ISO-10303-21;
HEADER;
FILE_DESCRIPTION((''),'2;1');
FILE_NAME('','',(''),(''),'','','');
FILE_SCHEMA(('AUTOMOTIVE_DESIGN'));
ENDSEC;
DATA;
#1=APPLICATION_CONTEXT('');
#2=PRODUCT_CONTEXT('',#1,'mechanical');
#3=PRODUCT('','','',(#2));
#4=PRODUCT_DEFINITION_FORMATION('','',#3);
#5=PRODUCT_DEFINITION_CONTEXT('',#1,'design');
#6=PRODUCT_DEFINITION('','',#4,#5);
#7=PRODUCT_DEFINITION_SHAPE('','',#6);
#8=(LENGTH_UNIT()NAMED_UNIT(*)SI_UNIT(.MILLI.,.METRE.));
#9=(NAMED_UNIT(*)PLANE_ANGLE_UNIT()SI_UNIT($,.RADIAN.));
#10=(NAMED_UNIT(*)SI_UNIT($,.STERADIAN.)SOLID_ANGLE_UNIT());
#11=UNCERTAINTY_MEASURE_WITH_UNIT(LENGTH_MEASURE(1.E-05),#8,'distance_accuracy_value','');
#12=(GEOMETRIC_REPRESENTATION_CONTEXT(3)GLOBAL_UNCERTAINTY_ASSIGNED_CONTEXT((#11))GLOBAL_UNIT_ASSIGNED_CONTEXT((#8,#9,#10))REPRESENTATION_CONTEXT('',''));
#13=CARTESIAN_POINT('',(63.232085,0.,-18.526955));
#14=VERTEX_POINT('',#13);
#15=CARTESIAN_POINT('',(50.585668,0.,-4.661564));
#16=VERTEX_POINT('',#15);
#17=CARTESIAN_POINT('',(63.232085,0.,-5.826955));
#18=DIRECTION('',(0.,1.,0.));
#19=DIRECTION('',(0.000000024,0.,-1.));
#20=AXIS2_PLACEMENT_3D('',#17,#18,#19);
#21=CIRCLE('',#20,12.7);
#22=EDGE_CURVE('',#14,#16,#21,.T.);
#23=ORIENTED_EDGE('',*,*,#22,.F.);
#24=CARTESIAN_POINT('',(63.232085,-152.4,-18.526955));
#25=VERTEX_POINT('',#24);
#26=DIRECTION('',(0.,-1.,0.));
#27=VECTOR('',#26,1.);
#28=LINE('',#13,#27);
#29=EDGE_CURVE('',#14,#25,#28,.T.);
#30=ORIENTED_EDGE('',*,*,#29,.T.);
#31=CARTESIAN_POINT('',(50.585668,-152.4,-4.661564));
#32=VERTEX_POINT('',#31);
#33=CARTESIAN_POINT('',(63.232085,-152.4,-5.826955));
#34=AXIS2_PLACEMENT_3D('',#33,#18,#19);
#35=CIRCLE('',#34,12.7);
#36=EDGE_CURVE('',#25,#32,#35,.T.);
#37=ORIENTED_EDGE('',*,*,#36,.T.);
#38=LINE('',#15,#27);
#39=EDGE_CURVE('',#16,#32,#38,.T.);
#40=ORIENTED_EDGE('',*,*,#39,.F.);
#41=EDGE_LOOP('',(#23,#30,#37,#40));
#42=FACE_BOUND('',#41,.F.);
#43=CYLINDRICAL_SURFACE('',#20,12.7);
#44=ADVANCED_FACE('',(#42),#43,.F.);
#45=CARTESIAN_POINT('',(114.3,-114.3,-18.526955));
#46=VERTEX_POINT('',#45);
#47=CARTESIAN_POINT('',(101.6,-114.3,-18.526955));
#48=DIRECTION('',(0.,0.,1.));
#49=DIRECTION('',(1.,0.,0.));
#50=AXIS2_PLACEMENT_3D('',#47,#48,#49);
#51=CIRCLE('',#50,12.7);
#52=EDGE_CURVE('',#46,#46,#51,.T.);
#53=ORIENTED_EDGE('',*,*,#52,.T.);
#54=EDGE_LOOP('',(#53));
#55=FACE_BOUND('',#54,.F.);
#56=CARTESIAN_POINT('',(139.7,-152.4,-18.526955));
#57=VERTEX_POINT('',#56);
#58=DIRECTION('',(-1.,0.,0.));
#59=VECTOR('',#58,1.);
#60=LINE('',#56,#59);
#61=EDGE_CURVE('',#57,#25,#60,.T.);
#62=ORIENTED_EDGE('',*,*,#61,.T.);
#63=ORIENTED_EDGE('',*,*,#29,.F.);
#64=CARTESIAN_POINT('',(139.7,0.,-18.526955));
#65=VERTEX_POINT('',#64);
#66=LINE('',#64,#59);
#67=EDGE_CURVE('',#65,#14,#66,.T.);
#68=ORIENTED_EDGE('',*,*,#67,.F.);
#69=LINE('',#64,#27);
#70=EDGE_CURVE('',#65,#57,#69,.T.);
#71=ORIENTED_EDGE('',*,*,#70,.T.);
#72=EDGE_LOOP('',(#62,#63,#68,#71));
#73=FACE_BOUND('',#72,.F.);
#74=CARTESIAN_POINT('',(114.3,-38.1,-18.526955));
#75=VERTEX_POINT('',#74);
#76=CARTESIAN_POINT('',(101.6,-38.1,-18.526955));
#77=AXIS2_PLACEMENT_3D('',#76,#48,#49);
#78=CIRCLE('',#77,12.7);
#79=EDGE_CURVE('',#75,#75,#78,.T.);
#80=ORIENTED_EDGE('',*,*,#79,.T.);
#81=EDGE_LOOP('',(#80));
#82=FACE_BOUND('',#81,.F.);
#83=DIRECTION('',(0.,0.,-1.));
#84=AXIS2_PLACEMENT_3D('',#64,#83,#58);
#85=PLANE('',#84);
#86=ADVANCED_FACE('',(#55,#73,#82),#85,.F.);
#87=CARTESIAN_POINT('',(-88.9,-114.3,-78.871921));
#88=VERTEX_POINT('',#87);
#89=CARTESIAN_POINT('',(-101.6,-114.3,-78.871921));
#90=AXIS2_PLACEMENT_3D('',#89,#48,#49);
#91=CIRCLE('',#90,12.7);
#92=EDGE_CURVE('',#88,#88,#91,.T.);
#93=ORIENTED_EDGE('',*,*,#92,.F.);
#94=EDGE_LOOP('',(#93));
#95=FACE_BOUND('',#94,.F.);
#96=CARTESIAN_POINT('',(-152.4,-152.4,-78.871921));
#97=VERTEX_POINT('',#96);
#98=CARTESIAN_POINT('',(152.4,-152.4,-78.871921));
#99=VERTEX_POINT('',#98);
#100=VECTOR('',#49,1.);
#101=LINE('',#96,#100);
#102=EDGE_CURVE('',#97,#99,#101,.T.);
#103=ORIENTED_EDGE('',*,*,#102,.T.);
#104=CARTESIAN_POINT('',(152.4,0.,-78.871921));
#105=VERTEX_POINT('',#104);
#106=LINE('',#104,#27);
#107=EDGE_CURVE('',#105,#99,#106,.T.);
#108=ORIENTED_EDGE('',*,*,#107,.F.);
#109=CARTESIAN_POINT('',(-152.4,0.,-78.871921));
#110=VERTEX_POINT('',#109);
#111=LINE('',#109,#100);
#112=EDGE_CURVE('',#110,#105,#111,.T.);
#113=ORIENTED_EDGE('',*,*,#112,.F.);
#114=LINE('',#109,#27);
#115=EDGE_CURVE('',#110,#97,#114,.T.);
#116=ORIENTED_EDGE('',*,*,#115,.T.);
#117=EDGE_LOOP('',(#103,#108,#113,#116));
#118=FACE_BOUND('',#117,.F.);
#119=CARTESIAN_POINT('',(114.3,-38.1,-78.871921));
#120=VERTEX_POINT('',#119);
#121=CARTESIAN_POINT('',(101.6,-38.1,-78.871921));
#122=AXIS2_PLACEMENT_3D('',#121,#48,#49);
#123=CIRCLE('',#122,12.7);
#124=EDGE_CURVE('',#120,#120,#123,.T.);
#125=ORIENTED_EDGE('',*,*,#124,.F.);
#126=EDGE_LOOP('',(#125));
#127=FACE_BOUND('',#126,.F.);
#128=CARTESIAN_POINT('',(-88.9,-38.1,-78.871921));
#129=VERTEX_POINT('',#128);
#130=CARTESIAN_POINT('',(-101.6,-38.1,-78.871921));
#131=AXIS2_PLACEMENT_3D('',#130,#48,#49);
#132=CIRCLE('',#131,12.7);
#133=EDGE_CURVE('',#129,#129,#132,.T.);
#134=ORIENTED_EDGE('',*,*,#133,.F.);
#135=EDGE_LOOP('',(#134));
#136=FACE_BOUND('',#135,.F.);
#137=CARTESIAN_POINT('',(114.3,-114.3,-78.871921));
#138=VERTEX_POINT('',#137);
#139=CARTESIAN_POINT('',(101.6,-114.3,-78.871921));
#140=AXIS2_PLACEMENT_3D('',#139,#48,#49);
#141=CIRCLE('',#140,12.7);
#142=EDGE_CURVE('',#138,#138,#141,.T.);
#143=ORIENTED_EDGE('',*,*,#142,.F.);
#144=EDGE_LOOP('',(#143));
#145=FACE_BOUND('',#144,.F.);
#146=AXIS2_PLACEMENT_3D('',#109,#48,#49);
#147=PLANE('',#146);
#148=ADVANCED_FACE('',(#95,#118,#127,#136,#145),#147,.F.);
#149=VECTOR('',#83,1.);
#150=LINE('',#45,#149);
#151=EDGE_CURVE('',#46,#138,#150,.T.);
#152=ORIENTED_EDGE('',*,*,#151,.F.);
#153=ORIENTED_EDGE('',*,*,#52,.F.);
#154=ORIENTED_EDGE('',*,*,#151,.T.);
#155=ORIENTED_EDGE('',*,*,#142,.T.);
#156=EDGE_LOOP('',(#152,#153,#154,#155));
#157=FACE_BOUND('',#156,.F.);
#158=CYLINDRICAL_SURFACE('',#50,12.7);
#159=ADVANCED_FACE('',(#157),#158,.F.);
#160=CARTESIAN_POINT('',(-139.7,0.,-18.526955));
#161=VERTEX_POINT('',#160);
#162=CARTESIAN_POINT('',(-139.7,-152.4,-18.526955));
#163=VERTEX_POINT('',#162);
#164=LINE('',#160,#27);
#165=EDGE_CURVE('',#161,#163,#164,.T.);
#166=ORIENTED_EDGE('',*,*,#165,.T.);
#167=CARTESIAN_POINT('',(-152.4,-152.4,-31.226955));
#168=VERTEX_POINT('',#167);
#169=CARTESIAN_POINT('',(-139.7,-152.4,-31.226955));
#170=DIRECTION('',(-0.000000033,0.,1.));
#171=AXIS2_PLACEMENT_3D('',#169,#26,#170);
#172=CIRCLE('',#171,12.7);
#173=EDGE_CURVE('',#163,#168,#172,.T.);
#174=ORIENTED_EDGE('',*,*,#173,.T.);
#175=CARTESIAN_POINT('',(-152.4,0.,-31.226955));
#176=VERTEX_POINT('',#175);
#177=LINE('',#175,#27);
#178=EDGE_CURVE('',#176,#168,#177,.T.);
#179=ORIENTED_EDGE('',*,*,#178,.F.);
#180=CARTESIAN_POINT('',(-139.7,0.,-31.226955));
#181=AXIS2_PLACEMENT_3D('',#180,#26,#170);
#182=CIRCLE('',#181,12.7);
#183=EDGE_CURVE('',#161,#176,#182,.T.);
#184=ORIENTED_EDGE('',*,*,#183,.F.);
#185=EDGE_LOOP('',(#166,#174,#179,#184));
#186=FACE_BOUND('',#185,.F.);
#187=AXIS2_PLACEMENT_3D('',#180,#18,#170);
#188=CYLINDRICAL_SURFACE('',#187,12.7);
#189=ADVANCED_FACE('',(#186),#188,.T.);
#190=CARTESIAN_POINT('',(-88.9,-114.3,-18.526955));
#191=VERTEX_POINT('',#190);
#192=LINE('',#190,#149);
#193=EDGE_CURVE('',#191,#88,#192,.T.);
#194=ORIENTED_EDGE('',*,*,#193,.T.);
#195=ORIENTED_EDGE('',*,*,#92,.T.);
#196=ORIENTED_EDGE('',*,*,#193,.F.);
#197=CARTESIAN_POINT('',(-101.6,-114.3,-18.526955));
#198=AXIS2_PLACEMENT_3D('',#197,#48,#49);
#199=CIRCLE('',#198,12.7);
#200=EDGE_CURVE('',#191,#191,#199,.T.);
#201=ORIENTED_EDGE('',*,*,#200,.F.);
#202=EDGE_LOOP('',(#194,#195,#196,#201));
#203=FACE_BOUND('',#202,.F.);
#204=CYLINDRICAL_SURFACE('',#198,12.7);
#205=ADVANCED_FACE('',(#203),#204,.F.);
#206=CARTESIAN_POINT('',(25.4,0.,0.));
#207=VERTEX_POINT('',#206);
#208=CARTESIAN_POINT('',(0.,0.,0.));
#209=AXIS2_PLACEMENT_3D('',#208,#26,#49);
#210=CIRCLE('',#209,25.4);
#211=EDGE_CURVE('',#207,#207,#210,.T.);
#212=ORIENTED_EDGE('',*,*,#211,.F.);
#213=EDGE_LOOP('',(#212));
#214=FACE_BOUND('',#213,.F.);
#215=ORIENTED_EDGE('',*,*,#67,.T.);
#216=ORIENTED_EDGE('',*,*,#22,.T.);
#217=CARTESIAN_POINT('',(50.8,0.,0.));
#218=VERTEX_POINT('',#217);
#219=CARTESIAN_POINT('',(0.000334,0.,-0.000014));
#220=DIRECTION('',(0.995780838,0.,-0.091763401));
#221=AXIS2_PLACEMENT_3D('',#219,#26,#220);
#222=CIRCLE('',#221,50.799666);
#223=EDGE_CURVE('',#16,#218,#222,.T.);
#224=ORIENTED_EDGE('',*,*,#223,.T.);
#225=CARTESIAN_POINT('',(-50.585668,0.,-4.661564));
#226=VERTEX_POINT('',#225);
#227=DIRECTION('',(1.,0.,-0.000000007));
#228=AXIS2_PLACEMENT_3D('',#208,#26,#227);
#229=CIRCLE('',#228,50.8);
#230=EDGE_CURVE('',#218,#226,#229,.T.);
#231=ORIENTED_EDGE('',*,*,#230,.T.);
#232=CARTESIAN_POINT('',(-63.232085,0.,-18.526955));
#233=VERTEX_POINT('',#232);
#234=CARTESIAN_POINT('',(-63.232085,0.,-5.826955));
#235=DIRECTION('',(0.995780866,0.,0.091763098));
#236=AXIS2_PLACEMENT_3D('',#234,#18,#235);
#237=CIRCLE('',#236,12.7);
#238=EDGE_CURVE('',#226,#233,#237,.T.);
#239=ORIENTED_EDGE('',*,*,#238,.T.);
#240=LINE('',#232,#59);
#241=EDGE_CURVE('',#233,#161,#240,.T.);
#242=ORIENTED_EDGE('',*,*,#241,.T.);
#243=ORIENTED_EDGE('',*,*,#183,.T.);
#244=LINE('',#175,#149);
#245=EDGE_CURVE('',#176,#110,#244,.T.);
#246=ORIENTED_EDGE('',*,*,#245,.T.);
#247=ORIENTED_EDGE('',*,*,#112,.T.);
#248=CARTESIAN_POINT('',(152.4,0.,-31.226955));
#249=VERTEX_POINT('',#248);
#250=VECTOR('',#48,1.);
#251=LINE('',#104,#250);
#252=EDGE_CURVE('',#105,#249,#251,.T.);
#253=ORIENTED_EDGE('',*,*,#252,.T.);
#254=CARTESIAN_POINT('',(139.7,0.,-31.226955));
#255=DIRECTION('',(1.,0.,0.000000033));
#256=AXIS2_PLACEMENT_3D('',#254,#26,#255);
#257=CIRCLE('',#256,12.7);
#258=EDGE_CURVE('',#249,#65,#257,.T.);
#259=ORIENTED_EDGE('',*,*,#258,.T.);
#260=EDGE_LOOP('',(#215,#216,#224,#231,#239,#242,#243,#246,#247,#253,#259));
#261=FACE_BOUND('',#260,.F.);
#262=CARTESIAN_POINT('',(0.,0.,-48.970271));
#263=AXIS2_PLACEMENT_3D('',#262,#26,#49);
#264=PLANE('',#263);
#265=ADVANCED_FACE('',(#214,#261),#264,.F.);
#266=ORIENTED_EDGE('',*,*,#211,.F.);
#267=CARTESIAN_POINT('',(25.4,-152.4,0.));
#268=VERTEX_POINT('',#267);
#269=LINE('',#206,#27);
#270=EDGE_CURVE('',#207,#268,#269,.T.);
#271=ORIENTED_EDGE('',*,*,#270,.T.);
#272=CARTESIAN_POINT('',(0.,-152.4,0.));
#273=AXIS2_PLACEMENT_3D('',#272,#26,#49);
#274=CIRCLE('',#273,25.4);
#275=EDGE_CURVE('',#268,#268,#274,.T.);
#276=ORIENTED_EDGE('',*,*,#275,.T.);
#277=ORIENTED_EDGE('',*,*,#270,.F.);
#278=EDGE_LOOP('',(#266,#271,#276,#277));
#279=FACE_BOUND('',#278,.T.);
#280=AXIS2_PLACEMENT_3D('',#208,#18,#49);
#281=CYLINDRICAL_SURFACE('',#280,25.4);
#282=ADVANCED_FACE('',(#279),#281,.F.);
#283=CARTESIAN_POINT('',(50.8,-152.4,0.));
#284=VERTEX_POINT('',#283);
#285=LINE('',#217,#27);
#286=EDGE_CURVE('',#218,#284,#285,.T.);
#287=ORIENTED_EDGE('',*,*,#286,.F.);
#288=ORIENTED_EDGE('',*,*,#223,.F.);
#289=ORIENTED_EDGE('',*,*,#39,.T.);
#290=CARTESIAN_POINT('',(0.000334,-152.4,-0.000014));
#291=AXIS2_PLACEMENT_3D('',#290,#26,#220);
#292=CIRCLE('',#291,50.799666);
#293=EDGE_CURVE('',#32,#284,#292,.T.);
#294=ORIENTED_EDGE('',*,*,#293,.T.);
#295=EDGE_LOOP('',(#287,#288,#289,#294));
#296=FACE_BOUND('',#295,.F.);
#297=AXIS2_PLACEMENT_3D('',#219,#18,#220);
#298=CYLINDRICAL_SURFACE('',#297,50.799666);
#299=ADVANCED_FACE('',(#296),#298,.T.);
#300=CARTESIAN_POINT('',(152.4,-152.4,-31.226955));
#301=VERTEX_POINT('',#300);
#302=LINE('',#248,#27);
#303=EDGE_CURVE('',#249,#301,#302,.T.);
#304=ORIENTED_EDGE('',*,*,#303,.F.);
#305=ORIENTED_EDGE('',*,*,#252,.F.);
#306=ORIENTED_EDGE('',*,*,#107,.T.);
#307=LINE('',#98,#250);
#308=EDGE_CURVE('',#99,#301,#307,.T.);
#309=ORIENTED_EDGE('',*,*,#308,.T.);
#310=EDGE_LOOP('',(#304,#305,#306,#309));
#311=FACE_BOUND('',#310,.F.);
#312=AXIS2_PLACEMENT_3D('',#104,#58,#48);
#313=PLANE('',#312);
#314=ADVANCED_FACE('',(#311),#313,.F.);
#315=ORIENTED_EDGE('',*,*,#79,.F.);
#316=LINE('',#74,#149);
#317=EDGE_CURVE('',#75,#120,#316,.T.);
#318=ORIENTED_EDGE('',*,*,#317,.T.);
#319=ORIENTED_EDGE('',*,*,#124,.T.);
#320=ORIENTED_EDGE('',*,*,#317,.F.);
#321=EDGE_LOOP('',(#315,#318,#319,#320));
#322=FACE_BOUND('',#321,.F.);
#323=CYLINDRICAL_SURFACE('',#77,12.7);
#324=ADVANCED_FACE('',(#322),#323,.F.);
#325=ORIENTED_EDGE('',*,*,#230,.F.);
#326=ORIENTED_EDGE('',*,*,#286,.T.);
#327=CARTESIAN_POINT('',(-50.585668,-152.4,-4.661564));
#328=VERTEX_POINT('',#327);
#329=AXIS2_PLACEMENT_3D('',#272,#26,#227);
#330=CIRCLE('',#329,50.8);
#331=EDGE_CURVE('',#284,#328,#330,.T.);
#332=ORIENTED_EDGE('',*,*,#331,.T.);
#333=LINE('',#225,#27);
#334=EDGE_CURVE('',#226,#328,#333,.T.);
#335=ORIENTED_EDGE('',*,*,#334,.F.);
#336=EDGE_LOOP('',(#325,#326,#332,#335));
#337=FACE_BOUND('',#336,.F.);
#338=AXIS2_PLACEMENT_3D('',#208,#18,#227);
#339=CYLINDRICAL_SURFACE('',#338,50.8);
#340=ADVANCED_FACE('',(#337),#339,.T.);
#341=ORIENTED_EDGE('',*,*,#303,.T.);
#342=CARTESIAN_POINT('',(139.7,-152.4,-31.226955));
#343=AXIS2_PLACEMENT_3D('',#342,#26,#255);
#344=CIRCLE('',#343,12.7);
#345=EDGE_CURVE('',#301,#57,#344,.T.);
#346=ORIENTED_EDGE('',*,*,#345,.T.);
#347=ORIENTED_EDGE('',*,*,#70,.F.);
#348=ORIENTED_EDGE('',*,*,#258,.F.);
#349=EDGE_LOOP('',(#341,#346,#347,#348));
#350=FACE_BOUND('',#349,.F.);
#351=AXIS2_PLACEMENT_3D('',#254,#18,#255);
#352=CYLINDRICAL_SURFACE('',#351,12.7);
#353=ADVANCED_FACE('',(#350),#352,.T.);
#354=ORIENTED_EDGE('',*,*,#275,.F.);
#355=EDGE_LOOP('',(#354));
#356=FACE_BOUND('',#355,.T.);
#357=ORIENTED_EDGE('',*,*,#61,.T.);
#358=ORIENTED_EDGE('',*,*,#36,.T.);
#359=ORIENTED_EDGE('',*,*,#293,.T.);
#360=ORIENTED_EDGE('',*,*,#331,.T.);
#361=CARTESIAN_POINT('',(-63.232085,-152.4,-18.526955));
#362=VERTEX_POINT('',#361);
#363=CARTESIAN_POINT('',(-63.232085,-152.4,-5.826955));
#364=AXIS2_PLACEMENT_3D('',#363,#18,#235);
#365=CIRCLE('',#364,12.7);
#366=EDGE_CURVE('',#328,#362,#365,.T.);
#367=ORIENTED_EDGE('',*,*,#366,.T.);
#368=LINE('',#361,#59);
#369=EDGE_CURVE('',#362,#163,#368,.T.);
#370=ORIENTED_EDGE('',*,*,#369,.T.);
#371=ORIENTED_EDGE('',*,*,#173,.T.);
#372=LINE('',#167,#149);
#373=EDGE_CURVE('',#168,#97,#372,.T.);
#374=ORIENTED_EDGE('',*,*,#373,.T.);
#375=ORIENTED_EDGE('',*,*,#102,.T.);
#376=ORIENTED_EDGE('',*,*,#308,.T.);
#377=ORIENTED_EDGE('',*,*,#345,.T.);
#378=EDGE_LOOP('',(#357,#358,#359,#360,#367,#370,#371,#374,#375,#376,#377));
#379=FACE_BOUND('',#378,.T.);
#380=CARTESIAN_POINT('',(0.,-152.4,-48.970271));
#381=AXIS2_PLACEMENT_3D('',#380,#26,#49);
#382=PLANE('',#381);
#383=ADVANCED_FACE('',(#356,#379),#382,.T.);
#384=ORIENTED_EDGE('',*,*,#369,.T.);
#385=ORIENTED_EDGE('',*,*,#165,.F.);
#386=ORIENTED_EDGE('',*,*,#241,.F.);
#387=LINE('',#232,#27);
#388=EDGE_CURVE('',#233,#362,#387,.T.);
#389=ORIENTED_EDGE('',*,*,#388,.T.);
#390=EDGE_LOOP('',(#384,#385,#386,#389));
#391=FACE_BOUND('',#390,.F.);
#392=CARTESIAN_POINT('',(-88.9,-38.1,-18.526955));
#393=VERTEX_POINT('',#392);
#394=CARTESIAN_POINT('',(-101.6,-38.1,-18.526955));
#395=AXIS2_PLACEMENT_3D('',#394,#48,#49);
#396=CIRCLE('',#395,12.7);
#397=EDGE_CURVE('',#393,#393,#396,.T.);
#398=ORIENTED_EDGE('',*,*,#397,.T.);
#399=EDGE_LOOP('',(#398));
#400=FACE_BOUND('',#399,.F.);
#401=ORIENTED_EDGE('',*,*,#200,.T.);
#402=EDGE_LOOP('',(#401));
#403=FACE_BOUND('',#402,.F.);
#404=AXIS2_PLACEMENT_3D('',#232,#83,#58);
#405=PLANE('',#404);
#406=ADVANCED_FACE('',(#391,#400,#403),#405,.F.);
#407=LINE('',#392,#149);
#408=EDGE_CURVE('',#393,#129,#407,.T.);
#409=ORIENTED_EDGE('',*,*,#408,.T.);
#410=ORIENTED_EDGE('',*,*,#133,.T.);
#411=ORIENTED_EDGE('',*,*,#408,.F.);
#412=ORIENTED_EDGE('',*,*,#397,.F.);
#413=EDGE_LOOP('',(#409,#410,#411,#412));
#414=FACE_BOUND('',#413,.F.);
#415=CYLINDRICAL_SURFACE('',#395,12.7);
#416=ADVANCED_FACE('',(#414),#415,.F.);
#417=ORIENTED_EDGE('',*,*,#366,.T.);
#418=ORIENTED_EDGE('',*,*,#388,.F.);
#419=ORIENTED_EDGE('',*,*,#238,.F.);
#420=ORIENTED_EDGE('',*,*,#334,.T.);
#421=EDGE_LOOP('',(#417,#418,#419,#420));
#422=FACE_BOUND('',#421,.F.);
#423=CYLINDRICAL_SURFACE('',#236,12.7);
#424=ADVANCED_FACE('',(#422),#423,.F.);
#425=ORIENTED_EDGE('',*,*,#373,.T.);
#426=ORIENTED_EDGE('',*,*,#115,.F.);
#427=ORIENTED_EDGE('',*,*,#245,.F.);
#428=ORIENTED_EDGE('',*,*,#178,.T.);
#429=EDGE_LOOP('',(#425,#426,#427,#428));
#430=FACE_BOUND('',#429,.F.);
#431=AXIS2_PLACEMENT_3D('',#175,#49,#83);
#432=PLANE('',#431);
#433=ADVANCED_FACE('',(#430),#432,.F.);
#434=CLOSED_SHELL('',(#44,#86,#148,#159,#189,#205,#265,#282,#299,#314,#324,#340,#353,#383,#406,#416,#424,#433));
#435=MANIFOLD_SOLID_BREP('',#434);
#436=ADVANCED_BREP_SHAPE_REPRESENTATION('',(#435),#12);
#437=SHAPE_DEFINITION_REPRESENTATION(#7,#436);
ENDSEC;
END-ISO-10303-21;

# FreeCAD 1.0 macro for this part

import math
import FreeCAD as App
import Part
import Sketcher
from FreeCAD import Vector
Q = App.Units.Quantity

doc = App.newDocument("Part")
body = doc.addObject("PartDesign::Body", "Body")

# Sketch on XZ plane
sketch1 = body.newObject("Sketcher::SketchObject", "Sketch")
sketch1.AttachmentSupport = (doc.getObject("XZ_Plane"), [""])
sketch1.MapMode = "FlatFace"
sketch1.addGeometry([
    Part.ArcOfCircle(Part.Circle(Vector(-63.2, -5.8, 0), Vector(0, 0, 1), 12.7), math.radians(-90), math.radians(5)),  # 0
    Part.LineSegment(Vector(-63.2, -18.5, 0), Vector(-139.7, -18.5, 0)),  # 1
    Part.ArcOfCircle(Part.Circle(Vector(-139.7, -31.2, 0), Vector(0, 0, 1), 12.7), math.radians(90), math.radians(180)),  # 2
    Part.LineSegment(Vector(-152.4, -31.2, 0), Vector(-152.4, -78.9, 0)),  # 3
    Part.LineSegment(Vector(-152.4, -78.9, 0), Vector(152.4, -78.9, 0)),  # 4
    Part.LineSegment(Vector(152.4, -78.9, 0), Vector(152.4, -31.2, 0)),  # 5
    Part.ArcOfCircle(Part.Circle(Vector(139.7, -31.2, 0), Vector(0, 0, 1), 12.7), math.radians(0), math.radians(90)),  # 6
    Part.LineSegment(Vector(139.7, -18.5, 0), Vector(63.2, -18.5, 0)),  # 7
    Part.ArcOfCircle(Part.Circle(Vector(63.2, -5.8, 0), Vector(0, 0, 1), 12.7), math.radians(175), math.radians(270)),  # 8
    Part.ArcOfCircle(Part.Circle(Vector(0, 0, 0), Vector(0, 0, 1), 50.8), math.radians(-5.27), math.radians(0)),  # 9
    Part.ArcOfCircle(Part.Circle(Vector(0, 0, 0), Vector(0, 0, 1), 50.8), math.radians(0), math.radians(185)),  # 10
    Part.Circle(Vector(0, 0, 0), Vector(0, 0, 1), 25.4),  # 11
], False)
sketch1.addConstraint([
    Sketcher.Constraint("Tangent", 0, 1, 1, 1),
    Sketcher.Constraint("Tangent", 1, 2, 2, 1),
    Sketcher.Constraint("Tangent", 2, 2, 3, 1),
    Sketcher.Constraint("Coincident", 3, 2, 4, 1),
    Sketcher.Constraint("Coincident", 4, 2, 5, 1),
    Sketcher.Constraint("Tangent", 5, 2, 6, 1),
    Sketcher.Constraint("Tangent", 6, 2, 7, 1),
    Sketcher.Constraint("Tangent", 7, 2, 8, 2),
    Sketcher.Constraint("Tangent", 8, 1, 9, 1),
    Sketcher.Constraint("Tangent", 9, 2, 10, 1),
    Sketcher.Constraint("Tangent", 10, 2, 0, 2),
    Sketcher.Constraint("Horizontal", 1),
    Sketcher.Constraint("Vertical", 3),
    Sketcher.Constraint("Horizontal", 4),
    Sketcher.Constraint("Vertical", 5),
    Sketcher.Constraint("Horizontal", 7),
    Sketcher.Constraint("Coincident", 10, 3, -1, 1),
    Sketcher.Constraint("Coincident", 11, 3, -1, 1),
    Sketcher.Constraint("Equal", 0, 2),
    Sketcher.Constraint("Equal", 2, 6),
    Sketcher.Constraint("Equal", 6, 8),
    Sketcher.Constraint("Symmetric", 2, 3, 6, 3, -2),
    Sketcher.Constraint("PointOnObject", 9, 2, -1),
    Sketcher.Constraint("Diameter", 11, Q("2 in")),
    Sketcher.Constraint("Radius", 10, Q("2 in")),
    Sketcher.Constraint("Radius", 0, Q("0.5 in")),
    Sketcher.Constraint("DistanceX", 4, 1, 4, 2, Q("12 in")),
    Sketcher.Constraint("Radius", 9, Q("50.799666 mm")),
    Sketcher.Constraint("DistanceX", 10, 2, 9, 3, Q("50.586002 mm")),
    Sketcher.Constraint("DistanceY", 3, 2, 3, 1, Q("47.644966 mm")),
])
pad1 = body.newObject("PartDesign::Pad", "Pad")
pad1.Profile = sketch1
pad1.Length = Q("6 in")

# Sketch on XY plane
sketch2 = body.newObject("Sketcher::SketchObject", "Sketch001")
sketch2.AttachmentSupport = (doc.getObject("XY_Plane"), [""])
sketch2.MapMode = "FlatFace"
sketch2.AttachmentOffset = App.Placement(Vector(0, 0, -18.526955), App.Rotation())
sketch2.addGeometry([
    Part.Circle(Vector(-102, -38, 0), Vector(0, 0, 1), 13),
    Part.Circle(Vector(-102, -114, 0), Vector(0, 0, 1), 13),
    Part.Circle(Vector(102, -114, 0), Vector(0, 0, 1), 13),
    Part.Circle(Vector(102, -38, 0), Vector(0, 0, 1), 13),
], False)
sketch2.addConstraint([
    Sketcher.Constraint("Equal", 0, 1),
    Sketcher.Constraint("Equal", 1, 2),
    Sketcher.Constraint("Equal", 2, 3),
    Sketcher.Constraint("Symmetric", 1, 3, 2, 3, -2),
    Sketcher.Constraint("Symmetric", 0, 3, 3, 3, -2),
    Sketcher.Constraint("Vertical", 0, 3, 1, 3),
    Sketcher.Constraint("Diameter", 0, Q("1 in")),
    Sketcher.Constraint("DistanceX", 0, 3, -1, 1, Q("4 in")),
    Sketcher.Constraint("DistanceY", 1, 3, 0, 3, Q("3 in")),
    Sketcher.Constraint("DistanceY", 0, 3, -1, 1, Q("1.5 in")),
])
pocket1 = body.newObject("PartDesign::Pocket", "Pocket")
pocket1.Profile = sketch2
pocket1.Type = "ThroughAll"

doc.recompute()
